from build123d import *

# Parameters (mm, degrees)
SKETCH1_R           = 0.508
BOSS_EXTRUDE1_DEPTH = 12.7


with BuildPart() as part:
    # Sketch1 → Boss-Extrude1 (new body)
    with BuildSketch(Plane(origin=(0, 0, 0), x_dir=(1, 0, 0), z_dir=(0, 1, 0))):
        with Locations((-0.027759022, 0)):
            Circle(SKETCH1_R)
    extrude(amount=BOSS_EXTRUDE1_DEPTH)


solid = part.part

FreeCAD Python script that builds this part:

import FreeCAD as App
import Part
import Sketcher
from FreeCAD import Vector
Q = App.Units.Quantity

doc = App.newDocument("Part")
body = doc.addObject("PartDesign::Body", "Body")

sketch1 = body.newObject("Sketcher::SketchObject", "Sketch")
sketch1.AttachmentSupport = (doc.getObject("XZ_Plane"), [""])
sketch1.MapMode = "FlatFace"
sketch1.addGeometry(Part.Circle(Vector(0, 0, 0), Vector(0, 0, 1), 0.5), False)
sketch1.addConstraint([
    Sketcher.Constraint("PointOnObject", 0, 3, -1),
    Sketcher.Constraint("Diameter", 0, Q("0.04 in")),
    Sketcher.Constraint("DistanceX", 0, 3, -1, 1, Q("0.027759 mm")),
])
pad1 = body.newObject("PartDesign::Pad", "Pad")
pad1.Profile = sketch1
pad1.Length = Q("0.5 in")
pad1.Reversed = True

doc.recompute()
